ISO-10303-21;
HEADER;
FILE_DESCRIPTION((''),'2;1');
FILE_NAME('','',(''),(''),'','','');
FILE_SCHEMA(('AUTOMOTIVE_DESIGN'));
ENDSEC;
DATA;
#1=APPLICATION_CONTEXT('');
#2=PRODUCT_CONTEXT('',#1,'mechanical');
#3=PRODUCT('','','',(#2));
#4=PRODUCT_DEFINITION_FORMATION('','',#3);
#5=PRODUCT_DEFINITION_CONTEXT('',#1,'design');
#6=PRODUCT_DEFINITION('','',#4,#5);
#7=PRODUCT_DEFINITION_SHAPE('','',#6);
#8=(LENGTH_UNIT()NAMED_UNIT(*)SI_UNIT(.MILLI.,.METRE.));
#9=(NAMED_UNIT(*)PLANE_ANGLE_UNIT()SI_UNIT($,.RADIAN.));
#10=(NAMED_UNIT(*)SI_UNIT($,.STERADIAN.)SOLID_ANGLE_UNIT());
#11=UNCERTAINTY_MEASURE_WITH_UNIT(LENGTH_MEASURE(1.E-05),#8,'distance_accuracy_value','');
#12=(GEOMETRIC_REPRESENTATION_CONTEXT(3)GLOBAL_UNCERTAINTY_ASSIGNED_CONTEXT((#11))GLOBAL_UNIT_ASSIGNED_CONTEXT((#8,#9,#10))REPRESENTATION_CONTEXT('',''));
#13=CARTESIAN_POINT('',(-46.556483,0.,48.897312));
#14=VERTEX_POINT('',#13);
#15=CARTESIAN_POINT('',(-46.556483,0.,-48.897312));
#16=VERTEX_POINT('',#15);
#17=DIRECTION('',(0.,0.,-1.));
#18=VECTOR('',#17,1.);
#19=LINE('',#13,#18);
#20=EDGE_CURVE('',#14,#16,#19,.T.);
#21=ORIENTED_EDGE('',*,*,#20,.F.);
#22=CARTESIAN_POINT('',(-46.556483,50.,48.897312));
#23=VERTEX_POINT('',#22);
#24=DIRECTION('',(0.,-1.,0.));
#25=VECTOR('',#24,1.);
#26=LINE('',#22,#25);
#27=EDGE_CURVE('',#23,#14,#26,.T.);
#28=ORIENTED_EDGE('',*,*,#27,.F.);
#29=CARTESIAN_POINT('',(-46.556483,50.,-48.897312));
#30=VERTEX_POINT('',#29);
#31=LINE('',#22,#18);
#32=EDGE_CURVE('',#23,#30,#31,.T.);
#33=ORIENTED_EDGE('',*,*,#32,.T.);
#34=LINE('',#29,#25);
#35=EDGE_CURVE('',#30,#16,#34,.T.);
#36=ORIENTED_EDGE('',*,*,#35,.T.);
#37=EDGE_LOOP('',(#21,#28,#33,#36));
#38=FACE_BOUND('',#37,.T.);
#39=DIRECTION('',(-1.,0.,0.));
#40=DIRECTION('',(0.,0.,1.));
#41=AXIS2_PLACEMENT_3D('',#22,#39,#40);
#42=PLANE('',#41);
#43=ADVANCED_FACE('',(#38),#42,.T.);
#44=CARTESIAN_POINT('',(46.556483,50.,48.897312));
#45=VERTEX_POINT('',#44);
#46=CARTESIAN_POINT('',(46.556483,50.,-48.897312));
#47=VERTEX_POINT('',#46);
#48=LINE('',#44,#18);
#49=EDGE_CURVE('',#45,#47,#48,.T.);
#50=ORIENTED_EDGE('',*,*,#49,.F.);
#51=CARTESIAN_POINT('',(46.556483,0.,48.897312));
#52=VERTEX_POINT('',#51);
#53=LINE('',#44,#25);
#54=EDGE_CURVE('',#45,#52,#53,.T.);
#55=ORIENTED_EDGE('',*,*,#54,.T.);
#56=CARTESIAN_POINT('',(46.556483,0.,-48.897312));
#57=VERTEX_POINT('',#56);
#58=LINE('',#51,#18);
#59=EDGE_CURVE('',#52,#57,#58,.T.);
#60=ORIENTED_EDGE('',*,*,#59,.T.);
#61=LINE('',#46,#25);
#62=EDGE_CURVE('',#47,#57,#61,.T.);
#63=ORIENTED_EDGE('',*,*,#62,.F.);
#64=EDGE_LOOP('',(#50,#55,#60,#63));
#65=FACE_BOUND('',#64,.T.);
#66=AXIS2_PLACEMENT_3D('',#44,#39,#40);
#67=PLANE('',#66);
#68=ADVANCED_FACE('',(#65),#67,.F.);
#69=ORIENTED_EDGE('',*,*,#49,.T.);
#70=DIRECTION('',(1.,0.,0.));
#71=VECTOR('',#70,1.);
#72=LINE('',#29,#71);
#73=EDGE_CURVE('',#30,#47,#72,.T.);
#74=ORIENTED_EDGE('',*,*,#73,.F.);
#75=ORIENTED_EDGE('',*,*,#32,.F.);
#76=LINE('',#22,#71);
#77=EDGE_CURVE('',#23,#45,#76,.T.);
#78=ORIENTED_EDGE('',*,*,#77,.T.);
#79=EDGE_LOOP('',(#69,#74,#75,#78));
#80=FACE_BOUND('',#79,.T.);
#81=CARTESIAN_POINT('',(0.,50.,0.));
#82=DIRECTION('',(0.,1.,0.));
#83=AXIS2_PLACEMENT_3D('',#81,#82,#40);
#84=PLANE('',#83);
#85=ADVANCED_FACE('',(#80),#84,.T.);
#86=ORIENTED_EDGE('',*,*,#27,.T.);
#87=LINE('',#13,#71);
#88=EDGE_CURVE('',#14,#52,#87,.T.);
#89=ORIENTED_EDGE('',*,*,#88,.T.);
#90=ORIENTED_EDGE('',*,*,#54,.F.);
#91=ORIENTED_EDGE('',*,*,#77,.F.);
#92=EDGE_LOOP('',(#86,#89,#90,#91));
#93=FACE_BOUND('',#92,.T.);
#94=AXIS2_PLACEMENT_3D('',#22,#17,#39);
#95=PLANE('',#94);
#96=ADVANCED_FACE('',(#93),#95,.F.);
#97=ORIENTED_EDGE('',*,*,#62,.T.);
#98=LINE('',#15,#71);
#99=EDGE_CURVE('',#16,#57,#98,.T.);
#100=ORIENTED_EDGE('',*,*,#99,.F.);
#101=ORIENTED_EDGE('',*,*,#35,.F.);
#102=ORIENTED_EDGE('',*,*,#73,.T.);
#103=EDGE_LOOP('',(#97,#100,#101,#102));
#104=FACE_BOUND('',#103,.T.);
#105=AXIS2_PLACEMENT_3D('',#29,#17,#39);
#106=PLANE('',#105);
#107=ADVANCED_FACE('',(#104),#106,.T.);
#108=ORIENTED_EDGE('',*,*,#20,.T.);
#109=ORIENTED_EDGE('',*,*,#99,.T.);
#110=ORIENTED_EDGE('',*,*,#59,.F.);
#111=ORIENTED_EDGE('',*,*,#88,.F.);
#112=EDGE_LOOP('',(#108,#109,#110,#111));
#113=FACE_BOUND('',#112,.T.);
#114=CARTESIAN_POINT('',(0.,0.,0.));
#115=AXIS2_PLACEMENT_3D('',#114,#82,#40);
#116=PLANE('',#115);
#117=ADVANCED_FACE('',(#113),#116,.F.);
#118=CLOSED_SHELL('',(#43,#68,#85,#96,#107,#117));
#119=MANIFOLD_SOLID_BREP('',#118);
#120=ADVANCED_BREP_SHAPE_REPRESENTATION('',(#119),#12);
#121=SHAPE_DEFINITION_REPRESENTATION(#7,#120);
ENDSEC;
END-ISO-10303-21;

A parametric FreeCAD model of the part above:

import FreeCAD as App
import Part
import Sketcher
Q = App.Units.Quantity

doc = App.newDocument("Part")
body = doc.addObject("PartDesign::Body", "Body")

sketch1 = doc.addObject("Sketcher::SketchObject", "Sketch")
body.addObject(sketch1)
sketch1.AttachmentSupport = (doc.XZ_Plane, [""])
sketch1.MapMode = "FlatFace"
sketch1.addGeometry(Part.Circle(App.Vector(0, 0, 0), App.Vector(0, 0, 1), 28), False)
sketch1.addConstraint([
    Sketcher.Constraint("Coincident", 0, 3, -1, 1),
    Sketcher.Constraint("Diameter", 0, Q("56.721546 mm")),
])
pad1 = doc.addObject("PartDesign::Pad", "Pad")
body.addObject(pad1)
pad1.Profile = sketch1
pad1.Length = 50
pad1.Reversed = True

sketch2 = doc.addObject("Sketcher::SketchObject", "Sketch001")
body.addObject(sketch2)
sketch2.AttachmentSupport = (doc.XZ_Plane, [""])
sketch2.MapMode = "FlatFace"
sketch2.addGeometry([
    Part.LineSegment(App.Vector(-47, -49, 0), App.Vector(-47, 49, 0)),
    Part.LineSegment(App.Vector(-47, 49, 0), App.Vector(47, 49, 0)),
    Part.LineSegment(App.Vector(47, 49, 0), App.Vector(47, -49, 0)),
    Part.LineSegment(App.Vector(47, -49, 0), App.Vector(-47, -49, 0)),
], False)
sketch2.addConstraint([
    Sketcher.Constraint("Coincident", 0, 2, 1, 1),
    Sketcher.Constraint("Coincident", 1, 2, 2, 1),
    Sketcher.Constraint("Coincident", 2, 2, 3, 1),
    Sketcher.Constraint("Coincident", 3, 2, 0, 1),
    Sketcher.Constraint("Vertical", 0),
    Sketcher.Constraint("Horizontal", 1),
    Sketcher.Constraint("Vertical", 2),
    Sketcher.Constraint("Horizontal", 3),
    Sketcher.Constraint("Symmetric", 0, 2, 2, 2, -1, 1),
    Sketcher.Constraint("DistanceX", 1, 1, 1, 2, Q("93.112966 mm")),
    Sketcher.Constraint("DistanceY", 0, 1, 0, 2, Q("97.794623 mm")),
])
pad2 = doc.addObject("PartDesign::Pad", "Pad001")
body.addObject(pad2)
pad2.Profile = sketch2
pad2.Length = 50
pad2.Reversed = True

doc.recompute()
